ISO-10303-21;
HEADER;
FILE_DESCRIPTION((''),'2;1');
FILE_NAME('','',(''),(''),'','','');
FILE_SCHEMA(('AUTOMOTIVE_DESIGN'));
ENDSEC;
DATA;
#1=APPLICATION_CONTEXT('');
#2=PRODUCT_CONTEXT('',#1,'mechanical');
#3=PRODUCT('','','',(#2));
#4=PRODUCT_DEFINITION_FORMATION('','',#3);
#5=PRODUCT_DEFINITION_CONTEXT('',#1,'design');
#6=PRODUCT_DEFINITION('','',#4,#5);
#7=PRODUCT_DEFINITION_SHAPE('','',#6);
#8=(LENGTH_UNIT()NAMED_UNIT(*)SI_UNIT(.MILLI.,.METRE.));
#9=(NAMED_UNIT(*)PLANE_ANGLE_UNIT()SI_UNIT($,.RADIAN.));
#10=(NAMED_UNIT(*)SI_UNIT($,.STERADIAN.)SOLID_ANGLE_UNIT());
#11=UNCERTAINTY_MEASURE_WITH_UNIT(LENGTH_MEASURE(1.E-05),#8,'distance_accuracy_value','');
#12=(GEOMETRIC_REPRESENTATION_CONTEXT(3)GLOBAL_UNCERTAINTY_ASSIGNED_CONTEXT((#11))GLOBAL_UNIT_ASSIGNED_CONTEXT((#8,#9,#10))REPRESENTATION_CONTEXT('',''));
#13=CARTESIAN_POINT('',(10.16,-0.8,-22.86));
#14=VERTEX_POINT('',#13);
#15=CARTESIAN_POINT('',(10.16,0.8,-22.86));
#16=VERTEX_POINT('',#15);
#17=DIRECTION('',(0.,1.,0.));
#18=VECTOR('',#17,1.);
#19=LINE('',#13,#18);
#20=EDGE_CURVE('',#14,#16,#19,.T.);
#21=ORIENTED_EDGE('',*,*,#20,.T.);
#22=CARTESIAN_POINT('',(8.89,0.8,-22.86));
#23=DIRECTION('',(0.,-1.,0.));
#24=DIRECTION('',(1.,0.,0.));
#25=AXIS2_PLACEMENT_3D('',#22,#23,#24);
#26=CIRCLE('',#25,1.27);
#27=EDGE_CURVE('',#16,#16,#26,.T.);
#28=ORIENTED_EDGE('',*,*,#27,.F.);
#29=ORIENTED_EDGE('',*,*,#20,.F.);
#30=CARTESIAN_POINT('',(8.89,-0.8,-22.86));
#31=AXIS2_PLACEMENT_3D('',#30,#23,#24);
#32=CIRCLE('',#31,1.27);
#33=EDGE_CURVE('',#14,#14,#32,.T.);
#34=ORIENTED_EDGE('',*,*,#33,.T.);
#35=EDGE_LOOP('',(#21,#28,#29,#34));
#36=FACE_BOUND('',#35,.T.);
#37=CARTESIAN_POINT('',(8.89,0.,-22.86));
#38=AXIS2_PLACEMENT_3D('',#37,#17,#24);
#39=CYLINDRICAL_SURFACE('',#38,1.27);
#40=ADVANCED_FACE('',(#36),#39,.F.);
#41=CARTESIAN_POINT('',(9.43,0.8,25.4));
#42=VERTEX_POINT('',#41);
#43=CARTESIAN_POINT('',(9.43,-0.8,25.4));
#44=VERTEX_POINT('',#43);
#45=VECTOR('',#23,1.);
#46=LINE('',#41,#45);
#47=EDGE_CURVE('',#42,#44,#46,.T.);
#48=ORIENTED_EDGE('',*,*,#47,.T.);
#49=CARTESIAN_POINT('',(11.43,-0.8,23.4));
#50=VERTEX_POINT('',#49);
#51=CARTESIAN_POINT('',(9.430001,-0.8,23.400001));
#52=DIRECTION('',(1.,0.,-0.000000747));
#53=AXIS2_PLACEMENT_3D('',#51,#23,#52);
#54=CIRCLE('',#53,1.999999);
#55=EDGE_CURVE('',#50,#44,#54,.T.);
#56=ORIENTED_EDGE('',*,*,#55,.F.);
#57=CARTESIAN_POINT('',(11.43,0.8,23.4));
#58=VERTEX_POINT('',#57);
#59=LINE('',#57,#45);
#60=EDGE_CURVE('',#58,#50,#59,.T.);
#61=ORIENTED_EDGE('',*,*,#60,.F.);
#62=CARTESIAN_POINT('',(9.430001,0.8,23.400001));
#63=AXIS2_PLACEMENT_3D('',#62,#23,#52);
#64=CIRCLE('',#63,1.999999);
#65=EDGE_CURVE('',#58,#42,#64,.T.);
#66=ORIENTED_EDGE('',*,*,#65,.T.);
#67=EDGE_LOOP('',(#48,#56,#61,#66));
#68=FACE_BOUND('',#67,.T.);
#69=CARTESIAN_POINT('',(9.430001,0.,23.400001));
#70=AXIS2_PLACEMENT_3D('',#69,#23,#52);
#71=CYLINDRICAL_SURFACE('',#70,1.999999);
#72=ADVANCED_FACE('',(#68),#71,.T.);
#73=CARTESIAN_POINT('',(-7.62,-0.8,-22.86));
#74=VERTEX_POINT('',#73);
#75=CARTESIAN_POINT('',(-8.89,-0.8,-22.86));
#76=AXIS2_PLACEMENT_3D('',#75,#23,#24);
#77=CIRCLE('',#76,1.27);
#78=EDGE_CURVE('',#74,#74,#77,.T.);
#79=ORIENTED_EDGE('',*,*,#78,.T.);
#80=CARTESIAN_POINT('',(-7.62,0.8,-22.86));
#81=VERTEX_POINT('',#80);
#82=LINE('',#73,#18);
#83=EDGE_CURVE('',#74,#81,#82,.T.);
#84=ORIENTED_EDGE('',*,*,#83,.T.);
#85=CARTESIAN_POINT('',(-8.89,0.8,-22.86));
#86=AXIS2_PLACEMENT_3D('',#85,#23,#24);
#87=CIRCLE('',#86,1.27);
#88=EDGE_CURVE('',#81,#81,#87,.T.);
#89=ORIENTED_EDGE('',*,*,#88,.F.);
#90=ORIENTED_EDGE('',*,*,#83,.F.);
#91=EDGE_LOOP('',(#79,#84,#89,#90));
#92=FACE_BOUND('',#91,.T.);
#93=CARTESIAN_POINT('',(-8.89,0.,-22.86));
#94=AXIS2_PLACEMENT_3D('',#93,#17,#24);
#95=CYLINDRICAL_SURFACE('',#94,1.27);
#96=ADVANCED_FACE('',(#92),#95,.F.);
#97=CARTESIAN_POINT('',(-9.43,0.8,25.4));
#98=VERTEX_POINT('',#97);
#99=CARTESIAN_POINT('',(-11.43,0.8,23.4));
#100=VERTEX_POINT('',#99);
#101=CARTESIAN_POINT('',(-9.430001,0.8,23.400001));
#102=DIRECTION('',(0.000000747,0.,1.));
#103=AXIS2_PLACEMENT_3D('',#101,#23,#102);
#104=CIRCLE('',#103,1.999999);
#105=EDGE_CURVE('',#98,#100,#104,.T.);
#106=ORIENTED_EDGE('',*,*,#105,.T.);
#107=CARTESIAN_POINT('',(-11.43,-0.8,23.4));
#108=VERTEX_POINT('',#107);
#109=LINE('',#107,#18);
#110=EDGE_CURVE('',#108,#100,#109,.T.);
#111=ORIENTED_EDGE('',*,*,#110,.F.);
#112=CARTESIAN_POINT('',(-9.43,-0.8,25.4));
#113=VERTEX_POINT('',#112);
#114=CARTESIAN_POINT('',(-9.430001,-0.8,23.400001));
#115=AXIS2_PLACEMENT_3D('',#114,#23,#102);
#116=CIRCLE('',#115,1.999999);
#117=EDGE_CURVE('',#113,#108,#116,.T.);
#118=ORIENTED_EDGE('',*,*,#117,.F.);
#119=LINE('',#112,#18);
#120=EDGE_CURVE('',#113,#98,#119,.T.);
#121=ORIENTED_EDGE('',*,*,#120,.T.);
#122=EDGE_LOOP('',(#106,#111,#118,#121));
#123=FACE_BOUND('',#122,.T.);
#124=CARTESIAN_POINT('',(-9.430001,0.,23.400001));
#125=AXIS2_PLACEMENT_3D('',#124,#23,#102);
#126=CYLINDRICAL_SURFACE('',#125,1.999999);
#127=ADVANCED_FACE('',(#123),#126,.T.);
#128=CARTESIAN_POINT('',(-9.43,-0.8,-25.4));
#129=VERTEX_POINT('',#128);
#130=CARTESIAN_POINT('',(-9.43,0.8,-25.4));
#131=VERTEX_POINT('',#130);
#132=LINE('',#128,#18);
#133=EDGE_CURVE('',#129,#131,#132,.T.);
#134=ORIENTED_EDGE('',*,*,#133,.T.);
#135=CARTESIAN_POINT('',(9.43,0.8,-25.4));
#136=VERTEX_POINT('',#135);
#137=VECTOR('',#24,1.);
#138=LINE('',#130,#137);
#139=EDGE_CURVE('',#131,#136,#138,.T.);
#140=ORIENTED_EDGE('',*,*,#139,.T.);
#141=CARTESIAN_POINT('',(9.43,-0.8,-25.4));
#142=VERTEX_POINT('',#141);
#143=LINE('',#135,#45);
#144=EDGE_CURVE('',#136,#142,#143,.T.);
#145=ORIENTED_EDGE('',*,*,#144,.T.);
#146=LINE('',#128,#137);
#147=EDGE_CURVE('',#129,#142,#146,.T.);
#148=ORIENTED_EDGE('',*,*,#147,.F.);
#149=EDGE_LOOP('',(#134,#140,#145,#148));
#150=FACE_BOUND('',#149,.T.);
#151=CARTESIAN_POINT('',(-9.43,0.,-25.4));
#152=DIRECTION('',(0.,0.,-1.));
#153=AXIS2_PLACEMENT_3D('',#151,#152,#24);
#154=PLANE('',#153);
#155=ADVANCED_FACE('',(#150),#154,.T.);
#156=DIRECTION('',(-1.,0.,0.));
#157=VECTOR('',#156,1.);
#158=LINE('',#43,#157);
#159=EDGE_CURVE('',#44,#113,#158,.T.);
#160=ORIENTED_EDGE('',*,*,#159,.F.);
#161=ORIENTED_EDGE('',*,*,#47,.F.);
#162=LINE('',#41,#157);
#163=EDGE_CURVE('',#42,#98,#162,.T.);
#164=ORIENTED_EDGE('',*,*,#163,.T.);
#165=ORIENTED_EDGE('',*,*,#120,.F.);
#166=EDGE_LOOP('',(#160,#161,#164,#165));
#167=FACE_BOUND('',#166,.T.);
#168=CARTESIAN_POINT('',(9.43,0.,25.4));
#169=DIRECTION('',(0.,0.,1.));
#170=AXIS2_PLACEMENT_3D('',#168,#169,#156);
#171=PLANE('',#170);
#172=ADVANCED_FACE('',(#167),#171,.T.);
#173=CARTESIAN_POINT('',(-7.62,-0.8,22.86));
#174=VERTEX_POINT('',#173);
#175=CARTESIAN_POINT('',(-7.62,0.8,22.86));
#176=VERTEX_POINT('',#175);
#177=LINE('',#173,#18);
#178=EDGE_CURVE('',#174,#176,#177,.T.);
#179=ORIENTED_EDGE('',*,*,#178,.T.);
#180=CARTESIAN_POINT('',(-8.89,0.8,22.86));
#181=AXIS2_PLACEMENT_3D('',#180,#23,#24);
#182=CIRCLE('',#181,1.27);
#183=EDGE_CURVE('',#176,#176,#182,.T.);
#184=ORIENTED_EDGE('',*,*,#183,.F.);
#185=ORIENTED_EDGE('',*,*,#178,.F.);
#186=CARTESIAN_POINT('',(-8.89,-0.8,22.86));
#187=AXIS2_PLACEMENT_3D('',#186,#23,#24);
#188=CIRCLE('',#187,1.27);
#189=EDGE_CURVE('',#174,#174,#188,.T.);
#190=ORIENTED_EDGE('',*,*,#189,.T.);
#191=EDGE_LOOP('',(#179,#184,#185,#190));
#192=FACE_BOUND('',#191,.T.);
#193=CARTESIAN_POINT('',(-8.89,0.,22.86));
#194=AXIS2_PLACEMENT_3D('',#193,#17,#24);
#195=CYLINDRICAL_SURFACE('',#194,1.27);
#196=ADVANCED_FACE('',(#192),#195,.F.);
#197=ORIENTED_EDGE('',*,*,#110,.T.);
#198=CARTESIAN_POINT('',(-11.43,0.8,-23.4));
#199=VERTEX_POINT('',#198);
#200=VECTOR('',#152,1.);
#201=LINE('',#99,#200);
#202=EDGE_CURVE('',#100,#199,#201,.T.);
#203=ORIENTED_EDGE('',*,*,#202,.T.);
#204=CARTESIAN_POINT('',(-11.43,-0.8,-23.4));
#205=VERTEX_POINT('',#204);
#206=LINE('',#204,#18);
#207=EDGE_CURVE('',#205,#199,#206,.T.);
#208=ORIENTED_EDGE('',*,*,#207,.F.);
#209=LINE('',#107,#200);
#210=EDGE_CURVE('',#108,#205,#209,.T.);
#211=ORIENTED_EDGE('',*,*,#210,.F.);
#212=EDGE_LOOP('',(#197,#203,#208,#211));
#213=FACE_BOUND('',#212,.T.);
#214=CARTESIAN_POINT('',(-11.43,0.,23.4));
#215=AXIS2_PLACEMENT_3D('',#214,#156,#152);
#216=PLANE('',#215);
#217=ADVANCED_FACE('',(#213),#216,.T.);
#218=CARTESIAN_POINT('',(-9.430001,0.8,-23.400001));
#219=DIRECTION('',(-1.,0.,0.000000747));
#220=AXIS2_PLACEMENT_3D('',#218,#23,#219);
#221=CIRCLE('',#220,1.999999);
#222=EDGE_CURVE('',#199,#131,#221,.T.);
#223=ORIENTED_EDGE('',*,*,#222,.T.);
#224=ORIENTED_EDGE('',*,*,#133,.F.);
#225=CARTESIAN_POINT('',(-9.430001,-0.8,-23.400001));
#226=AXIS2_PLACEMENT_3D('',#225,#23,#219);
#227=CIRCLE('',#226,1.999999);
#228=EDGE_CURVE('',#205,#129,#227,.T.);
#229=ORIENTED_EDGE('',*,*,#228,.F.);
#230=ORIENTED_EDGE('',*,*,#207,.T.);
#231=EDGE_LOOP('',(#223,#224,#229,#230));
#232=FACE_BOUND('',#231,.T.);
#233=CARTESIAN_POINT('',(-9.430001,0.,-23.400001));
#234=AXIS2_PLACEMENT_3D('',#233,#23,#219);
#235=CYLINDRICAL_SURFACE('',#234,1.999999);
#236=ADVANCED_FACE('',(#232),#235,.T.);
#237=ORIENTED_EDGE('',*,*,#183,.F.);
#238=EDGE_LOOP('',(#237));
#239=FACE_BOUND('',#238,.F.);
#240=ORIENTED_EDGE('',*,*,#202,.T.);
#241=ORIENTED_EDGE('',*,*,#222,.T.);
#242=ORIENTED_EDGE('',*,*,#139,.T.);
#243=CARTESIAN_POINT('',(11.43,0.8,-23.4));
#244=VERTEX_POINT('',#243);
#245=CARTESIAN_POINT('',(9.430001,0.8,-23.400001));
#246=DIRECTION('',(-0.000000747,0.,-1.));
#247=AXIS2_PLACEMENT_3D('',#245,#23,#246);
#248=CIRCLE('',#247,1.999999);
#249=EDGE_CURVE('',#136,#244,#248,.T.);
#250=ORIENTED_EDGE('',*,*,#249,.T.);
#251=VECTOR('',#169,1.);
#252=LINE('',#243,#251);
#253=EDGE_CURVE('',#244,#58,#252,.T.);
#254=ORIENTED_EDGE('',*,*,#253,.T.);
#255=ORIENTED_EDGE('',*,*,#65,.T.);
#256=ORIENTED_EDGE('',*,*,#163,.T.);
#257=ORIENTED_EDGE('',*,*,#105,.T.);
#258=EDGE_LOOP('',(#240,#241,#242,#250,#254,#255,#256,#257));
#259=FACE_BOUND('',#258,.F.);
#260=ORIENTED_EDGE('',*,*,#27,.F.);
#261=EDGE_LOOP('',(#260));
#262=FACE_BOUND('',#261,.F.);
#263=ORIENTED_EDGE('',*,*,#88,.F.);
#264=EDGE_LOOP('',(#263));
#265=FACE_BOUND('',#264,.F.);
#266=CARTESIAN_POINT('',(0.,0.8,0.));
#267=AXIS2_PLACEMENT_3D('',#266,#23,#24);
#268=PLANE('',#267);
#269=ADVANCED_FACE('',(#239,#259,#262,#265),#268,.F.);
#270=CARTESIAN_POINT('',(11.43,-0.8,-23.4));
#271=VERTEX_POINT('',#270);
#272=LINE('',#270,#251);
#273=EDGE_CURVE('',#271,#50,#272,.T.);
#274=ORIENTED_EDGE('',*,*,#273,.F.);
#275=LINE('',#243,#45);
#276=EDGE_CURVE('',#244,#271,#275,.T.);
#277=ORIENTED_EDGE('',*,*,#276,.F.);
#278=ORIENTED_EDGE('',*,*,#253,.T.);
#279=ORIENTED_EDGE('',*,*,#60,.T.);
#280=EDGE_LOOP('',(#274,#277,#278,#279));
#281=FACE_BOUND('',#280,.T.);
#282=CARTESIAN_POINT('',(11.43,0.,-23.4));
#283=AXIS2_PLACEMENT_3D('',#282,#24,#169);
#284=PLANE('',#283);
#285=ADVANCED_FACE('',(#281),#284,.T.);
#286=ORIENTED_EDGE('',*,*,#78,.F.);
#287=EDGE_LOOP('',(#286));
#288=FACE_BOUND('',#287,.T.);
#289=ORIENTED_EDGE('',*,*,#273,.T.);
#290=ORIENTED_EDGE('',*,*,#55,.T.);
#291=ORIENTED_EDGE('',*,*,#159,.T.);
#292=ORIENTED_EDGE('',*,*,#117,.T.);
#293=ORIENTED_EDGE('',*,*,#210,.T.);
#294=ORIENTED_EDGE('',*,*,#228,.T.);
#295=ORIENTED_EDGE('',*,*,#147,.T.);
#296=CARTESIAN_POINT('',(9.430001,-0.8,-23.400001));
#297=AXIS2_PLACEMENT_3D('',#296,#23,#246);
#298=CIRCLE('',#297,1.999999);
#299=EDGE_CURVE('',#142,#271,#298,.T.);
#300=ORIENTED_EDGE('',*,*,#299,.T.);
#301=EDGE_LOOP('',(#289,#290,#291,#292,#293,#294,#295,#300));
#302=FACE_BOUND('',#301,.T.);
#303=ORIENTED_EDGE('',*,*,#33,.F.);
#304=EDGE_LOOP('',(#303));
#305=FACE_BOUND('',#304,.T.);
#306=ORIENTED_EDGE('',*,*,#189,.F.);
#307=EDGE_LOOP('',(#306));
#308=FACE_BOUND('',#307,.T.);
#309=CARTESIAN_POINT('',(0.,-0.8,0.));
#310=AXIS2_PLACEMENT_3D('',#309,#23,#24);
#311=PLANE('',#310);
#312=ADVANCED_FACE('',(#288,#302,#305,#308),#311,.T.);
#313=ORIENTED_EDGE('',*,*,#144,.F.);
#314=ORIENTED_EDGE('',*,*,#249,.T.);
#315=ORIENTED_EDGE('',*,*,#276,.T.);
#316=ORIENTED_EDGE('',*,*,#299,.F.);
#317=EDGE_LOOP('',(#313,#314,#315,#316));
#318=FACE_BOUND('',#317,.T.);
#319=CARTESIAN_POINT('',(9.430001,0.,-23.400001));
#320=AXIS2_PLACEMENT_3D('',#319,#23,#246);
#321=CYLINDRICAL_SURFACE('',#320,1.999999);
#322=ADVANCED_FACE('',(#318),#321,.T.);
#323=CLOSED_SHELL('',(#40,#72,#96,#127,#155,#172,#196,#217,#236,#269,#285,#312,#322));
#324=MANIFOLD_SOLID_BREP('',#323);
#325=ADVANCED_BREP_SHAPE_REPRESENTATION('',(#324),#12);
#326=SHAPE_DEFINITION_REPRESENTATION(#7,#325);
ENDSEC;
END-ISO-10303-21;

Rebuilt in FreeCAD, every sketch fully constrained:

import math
import FreeCAD as App
import Part
import Sketcher

V = App.Vector
Q = App.Units.Quantity

doc = App.newDocument("Part")
body = doc.addObject("PartDesign::Body", "Body")

sketch1 = doc.addObject("Sketcher::SketchObject", "Sketch")
body.addObject(sketch1)
sketch1.AttachmentSupport = (doc.XZ_Plane, [""])
sketch1.MapMode = "FlatFace"
sketch1.addGeometry([
    Part.LineSegment(V(-9.4, -25.4, 0), V(9.4, -25.4, 0)),
    Part.ArcOfCircle(Part.Circle(V(9.4, -23.4, 0), V(0, 0, 1), 2), math.radians(-90), math.radians(0)),
    Part.LineSegment(V(11.4, -23.4, 0), V(11.4, 23.4, 0)),
    Part.ArcOfCircle(Part.Circle(V(9.4, 23.4, 0), V(0, 0, 1), 2), math.radians(0), math.radians(90)),
    Part.LineSegment(V(9.4, 25.4, 0), V(-9.4, 25.4, 0)),
    Part.ArcOfCircle(Part.Circle(V(-9.4, 23.4, 0), V(0, 0, 1), 2), math.radians(90), math.radians(180)),
    Part.LineSegment(V(-11.4, 23.4, 0), V(-11.4, -23.4, 0)),
    Part.ArcOfCircle(Part.Circle(V(-9.4, -23.4, 0), V(0, 0, 1), 2), math.radians(180), math.radians(270)),
    Part.Circle(V(-8.9, -22.9, 0), V(0, 0, 1), 1.3),
    Part.Circle(V(8.9, -22.9, 0), V(0, 0, 1), 1.3),
    Part.Circle(V(-8.9, 22.9, 0), V(0, 0, 1), 1.3),
], False)
sketch1.addConstraint([
    Sketcher.Constraint("Tangent", 0, 2, 1, 1),
    Sketcher.Constraint("Tangent", 1, 2, 2, 1),
    Sketcher.Constraint("Tangent", 2, 2, 3, 1),
    Sketcher.Constraint("Tangent", 3, 2, 4, 1),
    Sketcher.Constraint("Tangent", 4, 2, 5, 1),
    Sketcher.Constraint("Tangent", 5, 2, 6, 1),
    Sketcher.Constraint("Tangent", 6, 2, 7, 1),
    Sketcher.Constraint("Tangent", 7, 2, 0, 1),
    Sketcher.Constraint("Horizontal", 0),
    Sketcher.Constraint("Vertical", 2),
    Sketcher.Constraint("Horizontal", 4),
    Sketcher.Constraint("Vertical", 6),
    Sketcher.Constraint("Equal", 1, 3),
    Sketcher.Constraint("Equal", 3, 5),
    Sketcher.Constraint("Equal", 5, 7),
    Sketcher.Constraint("Equal", 8, 9),
    Sketcher.Constraint("Equal", 9, 10),
    Sketcher.Constraint("Symmetric", 1, 3, 5, 3, -1, 1),
    Sketcher.Constraint("Symmetric", 9, 3, 10, 3, -1, 1),
    Sketcher.Constraint("Symmetric", 8, 3, 9, 3, -2),
    Sketcher.Constraint("Radius", 1, Q("1.999999 mm")),
    Sketcher.Constraint("Diameter", 8, Q("2.54 mm")),
    Sketcher.Constraint("DistanceY", 2, 1, 2, 2, Q("46.8 mm")),
    Sketcher.Constraint("DistanceX", 0, 1, 0, 2, Q("18.86 mm")),
    Sketcher.Constraint("DistanceX", 8, 3, -1, 1, Q("8.89 mm")),
    Sketcher.Constraint("DistanceY", 8, 3, -1, 1, Q("22.86 mm")),
])
pad1 = doc.addObject("PartDesign::Pad", "Pad")
body.addObject(pad1)
pad1.Profile = sketch1
pad1.Length = 1.6
pad1.Midplane = True

doc.recompute()
